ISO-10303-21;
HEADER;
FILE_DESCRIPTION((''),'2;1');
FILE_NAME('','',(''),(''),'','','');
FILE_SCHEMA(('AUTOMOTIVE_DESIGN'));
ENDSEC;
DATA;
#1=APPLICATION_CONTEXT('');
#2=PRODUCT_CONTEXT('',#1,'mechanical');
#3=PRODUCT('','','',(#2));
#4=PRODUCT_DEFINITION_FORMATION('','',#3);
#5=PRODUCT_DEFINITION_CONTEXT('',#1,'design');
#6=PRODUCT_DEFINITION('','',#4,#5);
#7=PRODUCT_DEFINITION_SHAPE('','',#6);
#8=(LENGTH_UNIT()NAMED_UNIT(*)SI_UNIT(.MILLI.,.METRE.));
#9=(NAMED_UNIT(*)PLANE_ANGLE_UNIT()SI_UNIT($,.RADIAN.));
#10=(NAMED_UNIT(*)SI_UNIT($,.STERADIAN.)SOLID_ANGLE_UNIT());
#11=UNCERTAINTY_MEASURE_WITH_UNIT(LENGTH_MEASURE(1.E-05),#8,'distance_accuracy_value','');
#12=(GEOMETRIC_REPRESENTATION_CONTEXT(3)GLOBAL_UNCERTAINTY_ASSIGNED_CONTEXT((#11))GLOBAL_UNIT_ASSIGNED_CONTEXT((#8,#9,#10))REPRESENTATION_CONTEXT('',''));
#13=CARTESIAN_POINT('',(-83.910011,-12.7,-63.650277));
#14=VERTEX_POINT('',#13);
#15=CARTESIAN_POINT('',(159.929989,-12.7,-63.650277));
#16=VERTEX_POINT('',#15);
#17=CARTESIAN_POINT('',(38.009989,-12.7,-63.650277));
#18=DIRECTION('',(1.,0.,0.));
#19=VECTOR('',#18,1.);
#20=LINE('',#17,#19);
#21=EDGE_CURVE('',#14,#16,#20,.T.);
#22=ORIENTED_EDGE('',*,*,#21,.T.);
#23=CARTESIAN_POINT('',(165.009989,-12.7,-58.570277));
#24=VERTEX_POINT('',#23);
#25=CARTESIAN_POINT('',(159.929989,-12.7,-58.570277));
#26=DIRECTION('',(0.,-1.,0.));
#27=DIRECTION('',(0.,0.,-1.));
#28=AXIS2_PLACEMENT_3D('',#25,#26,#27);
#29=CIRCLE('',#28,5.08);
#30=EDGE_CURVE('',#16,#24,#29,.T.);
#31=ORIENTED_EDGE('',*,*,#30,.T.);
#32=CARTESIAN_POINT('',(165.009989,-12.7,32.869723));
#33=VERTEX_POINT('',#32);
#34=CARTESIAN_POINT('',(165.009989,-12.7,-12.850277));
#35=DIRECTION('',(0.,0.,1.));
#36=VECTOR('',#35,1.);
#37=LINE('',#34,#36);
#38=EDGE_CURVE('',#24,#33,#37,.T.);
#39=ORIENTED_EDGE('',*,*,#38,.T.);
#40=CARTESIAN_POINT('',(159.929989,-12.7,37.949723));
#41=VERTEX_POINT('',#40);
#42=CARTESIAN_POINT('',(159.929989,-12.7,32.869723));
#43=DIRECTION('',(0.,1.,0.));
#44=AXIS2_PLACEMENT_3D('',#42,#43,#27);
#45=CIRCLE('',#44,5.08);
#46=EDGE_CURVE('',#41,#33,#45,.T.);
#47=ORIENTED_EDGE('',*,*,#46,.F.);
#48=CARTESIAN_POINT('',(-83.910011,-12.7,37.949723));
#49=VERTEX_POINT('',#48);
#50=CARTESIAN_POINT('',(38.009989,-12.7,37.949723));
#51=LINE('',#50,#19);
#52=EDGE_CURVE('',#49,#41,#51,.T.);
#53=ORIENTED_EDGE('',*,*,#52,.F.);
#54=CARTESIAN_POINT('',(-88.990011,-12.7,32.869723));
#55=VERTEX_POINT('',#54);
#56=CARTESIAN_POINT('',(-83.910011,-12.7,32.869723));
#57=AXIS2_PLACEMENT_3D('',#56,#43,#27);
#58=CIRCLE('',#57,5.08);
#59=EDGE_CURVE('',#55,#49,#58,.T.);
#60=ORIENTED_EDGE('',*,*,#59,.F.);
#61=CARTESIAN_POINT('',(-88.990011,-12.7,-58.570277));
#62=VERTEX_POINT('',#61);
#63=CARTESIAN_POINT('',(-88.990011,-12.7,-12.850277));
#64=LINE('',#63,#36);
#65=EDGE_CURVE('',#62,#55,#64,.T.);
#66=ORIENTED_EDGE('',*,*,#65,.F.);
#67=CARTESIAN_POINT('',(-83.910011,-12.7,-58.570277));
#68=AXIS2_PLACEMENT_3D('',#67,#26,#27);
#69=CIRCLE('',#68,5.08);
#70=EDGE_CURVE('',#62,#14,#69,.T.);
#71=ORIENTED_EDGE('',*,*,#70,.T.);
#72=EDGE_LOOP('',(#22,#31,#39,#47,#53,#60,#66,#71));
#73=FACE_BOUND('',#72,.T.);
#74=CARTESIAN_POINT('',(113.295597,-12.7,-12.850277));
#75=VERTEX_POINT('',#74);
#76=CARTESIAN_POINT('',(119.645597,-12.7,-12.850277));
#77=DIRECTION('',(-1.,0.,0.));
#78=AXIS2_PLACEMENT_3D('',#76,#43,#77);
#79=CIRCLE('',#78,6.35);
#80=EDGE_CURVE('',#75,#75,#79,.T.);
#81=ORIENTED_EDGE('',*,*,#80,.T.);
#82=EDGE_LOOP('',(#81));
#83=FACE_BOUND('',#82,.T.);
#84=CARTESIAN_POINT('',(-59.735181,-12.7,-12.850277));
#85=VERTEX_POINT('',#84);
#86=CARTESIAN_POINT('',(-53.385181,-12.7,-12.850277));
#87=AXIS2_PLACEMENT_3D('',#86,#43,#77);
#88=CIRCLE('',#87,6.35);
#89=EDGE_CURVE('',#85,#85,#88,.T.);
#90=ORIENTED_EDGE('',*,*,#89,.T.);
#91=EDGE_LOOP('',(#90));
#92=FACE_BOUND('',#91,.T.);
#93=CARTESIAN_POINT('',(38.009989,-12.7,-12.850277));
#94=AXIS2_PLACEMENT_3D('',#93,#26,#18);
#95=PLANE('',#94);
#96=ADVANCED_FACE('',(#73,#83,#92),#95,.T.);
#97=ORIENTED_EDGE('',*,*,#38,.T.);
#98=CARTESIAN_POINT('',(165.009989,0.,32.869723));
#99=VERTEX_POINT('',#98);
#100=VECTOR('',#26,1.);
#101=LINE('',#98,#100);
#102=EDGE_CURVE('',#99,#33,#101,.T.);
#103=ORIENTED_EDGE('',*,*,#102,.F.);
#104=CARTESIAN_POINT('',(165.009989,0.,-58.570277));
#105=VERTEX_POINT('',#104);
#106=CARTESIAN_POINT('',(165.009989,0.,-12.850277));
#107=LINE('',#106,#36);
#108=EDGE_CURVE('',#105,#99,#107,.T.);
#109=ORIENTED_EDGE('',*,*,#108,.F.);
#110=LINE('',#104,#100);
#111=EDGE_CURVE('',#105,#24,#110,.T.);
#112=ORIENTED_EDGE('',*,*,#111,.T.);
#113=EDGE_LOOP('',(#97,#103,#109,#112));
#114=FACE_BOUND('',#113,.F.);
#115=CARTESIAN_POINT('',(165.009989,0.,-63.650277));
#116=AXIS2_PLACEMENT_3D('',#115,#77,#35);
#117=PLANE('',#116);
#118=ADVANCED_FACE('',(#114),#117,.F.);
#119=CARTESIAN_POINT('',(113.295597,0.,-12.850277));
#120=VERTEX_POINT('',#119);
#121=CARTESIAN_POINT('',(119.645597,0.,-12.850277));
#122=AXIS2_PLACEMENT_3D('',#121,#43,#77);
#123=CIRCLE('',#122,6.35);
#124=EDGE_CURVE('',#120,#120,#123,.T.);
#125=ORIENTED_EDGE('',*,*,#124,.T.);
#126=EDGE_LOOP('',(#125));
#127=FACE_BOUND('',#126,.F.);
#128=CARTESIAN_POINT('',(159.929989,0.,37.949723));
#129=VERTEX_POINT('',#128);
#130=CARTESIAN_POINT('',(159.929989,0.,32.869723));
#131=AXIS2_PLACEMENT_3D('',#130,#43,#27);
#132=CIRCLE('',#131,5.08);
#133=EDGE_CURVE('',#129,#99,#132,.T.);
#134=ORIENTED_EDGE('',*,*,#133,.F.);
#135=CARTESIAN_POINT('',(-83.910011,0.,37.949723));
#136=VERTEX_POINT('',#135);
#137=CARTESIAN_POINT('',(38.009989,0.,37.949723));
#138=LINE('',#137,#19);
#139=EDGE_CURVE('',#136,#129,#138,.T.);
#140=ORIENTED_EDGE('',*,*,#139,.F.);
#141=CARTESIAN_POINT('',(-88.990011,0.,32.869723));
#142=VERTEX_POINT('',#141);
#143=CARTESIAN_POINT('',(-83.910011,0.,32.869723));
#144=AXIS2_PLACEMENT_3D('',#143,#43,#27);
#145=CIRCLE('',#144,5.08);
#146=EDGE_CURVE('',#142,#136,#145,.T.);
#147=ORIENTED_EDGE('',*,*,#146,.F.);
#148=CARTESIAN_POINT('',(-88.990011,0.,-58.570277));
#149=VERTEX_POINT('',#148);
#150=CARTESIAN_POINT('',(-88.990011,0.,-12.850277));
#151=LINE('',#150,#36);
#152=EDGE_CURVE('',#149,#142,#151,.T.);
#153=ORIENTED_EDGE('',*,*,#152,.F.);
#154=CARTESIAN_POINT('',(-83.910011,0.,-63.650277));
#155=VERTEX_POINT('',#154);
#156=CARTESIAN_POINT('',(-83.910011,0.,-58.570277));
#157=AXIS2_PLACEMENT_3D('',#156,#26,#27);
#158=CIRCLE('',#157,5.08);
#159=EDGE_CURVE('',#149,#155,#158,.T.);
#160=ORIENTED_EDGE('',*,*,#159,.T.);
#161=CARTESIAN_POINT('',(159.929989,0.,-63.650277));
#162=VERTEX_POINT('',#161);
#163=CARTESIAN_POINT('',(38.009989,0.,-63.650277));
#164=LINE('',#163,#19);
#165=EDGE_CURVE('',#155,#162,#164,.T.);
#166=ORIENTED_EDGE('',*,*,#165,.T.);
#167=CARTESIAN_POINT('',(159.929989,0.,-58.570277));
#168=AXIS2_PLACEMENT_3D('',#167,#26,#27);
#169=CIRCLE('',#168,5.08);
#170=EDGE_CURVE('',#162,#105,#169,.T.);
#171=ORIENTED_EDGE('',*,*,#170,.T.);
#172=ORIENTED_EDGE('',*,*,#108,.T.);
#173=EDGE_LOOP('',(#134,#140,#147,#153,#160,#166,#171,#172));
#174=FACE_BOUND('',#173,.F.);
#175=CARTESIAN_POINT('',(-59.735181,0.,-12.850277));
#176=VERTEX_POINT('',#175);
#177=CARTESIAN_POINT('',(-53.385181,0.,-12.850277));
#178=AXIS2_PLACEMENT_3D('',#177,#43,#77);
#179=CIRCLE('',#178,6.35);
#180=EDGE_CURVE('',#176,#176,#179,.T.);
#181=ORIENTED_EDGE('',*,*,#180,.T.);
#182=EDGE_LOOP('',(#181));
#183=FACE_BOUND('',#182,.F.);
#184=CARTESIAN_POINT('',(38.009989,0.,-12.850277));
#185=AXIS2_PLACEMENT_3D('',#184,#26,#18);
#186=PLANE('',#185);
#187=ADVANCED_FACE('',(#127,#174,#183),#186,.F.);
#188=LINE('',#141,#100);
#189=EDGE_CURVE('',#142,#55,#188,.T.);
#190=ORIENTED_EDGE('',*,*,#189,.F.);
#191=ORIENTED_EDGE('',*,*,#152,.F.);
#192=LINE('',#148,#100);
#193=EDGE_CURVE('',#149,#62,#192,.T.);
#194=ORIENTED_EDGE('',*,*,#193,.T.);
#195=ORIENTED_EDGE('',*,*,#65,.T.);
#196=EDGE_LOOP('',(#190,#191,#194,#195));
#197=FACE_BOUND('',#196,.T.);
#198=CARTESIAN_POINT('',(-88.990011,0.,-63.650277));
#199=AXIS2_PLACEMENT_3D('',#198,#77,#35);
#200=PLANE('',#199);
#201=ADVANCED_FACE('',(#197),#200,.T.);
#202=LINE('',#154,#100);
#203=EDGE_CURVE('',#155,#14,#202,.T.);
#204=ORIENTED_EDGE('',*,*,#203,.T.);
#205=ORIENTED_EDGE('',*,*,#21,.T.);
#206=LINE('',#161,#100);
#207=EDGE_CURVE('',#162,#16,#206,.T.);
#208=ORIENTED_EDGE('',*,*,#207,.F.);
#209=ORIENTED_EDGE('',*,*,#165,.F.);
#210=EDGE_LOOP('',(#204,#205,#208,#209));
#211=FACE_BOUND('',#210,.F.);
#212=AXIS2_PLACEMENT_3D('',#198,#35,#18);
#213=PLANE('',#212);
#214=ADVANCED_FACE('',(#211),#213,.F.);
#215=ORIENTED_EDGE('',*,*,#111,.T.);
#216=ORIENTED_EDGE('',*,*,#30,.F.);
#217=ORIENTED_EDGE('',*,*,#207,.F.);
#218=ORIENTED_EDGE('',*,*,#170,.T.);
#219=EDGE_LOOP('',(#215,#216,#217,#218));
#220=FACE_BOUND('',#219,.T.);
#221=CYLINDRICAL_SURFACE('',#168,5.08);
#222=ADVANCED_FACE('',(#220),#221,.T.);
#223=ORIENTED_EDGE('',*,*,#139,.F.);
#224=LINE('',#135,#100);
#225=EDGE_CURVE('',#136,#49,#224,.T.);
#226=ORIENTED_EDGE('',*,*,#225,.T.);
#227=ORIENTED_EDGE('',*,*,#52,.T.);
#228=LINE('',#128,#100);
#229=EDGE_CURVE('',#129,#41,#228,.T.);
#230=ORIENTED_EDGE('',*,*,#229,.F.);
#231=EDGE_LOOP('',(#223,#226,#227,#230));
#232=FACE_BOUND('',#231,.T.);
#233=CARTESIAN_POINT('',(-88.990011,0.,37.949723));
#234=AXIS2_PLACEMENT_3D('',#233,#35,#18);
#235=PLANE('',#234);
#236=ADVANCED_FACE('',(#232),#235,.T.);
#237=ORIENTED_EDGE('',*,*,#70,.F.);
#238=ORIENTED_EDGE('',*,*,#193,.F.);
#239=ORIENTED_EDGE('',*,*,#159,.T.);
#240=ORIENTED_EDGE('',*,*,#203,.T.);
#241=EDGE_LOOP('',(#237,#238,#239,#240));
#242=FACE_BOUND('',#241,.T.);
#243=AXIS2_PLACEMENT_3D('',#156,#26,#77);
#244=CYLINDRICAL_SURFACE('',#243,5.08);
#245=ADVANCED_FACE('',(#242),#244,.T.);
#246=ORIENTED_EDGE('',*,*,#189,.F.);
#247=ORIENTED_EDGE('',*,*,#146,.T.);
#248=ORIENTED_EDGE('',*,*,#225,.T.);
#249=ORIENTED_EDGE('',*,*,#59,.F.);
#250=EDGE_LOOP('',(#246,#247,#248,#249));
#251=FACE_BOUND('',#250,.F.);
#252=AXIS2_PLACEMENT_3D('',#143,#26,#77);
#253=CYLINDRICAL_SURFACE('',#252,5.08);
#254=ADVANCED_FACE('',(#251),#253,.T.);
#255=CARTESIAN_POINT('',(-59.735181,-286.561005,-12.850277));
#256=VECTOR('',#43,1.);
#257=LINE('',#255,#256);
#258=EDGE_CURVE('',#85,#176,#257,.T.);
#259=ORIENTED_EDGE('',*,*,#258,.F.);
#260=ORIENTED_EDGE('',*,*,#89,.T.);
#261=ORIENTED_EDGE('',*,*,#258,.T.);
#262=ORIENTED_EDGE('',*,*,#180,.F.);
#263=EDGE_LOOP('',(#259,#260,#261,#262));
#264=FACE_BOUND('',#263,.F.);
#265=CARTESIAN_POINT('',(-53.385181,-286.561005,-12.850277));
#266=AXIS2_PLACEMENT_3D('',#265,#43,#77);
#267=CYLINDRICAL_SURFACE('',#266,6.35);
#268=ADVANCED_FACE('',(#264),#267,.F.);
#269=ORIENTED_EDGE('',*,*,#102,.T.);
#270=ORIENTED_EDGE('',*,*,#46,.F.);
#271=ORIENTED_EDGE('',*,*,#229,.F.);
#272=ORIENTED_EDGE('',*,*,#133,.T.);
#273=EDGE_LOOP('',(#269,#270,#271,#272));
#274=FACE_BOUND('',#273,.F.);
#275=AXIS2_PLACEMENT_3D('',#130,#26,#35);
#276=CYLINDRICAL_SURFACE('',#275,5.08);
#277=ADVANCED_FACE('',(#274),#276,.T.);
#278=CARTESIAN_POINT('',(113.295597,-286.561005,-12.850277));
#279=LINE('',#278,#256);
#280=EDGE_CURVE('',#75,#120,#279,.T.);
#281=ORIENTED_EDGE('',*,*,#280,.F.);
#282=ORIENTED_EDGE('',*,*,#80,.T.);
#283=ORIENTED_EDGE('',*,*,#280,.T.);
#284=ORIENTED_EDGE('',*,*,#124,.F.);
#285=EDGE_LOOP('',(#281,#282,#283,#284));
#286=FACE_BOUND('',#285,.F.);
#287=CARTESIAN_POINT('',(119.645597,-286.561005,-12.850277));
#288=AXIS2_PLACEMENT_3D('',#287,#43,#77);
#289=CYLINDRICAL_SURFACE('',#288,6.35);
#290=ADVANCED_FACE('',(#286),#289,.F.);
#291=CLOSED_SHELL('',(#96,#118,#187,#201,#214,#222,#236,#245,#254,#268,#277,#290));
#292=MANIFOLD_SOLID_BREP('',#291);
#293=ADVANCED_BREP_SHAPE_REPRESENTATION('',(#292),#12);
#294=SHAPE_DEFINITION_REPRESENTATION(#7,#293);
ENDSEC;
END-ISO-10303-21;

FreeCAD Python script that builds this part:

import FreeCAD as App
import Part
import Sketcher
from FreeCAD import Vector
Q = App.Units.Quantity


def edges_at(feature, points):
    """Names of the edges that pass closest to the given points."""
    edges = feature.Shape.Edges
    near = lambda p: min(range(len(edges)), key=lambda i: edges[i].distToShape(Part.Vertex(*p))[0])
    return sorted({f"Edge{near(p) + 1}" for p in points})


def add_polygon(sketch, points):
    """Adds a closed chain of lines whose ends are joined by coincident constraints."""
    first, n = sketch.GeometryCount, len(points)
    for a, b in zip(points, points[1:] + points[:1]):
        sketch.addGeometry(Part.LineSegment(App.Vector(*a, 0), App.Vector(*b, 0)), False)
    for i in range(n):
        sketch.addConstraint(Sketcher.Constraint("Coincident", first + i, 2, first + (i + 1) % n, 1))

doc = App.newDocument("Part")
body = doc.addObject("PartDesign::Body", "Body")

# Sketch on XZ plane
sketch1 = body.newObject("Sketcher::SketchObject", "Sketch")
sketch1.AttachmentSupport = (doc.getObject("XZ_Plane"), [""])
sketch1.MapMode = "FlatFace"
add_polygon(sketch1, [(-88.990011, 37.949723), (-88.990011, -63.650277), (165.009989, -63.650277), (165.009989, 37.949723)])  # lines 0-3
sketch1.addConstraint([
    Sketcher.Constraint("Vertical", 0),
    Sketcher.Constraint("Horizontal", 1),
    Sketcher.Constraint("Vertical", 2),
    Sketcher.Constraint("Horizontal", 3),
    Sketcher.Constraint("DistanceX", 1, 1, 1, 2, Q("10 in")),
    Sketcher.Constraint("DistanceY", 0, 2, 0, 1, Q("4 in")),
    Sketcher.Constraint("DistanceX", 0, 2, -1, 1, 88.990011),
    Sketcher.Constraint("DistanceY", 0, 2, -1, 1, 63.650277),
])
pad1 = body.newObject("PartDesign::Pad", "Pad")
pad1.Profile = sketch1
pad1.Length = Q("0.5 in")

# Sketch on XZ plane
sketch2 = body.newObject("Sketcher::SketchObject", "Sketch001")
sketch2.AttachmentSupport = (doc.getObject("XZ_Plane"), [""])
sketch2.MapMode = "FlatFace"
sketch2.AttachmentOffset = App.Placement(Vector(0, 0, 0.5 * 25.4), App.Rotation())
sketch2.addGeometry([
    Part.Circle(Vector(-53.385181, -12.850277, 0), Vector(0, 0, 1), 6.35),
    Part.Circle(Vector(119.645597, -12.850277, 0), Vector(0, 0, 1), 6.35),
], False)
sketch2.addConstraint([
    Sketcher.Constraint("Equal", 0, 1),
    Sketcher.Constraint("Horizontal", 0, 3, 1, 3),
    Sketcher.Constraint("Diameter", 0, Q("0.5 in")),
    Sketcher.Constraint("DistanceX", 0, 3, -1, 1, 53.385181),
    Sketcher.Constraint("DistanceX", 0, 3, 1, 3, 173.030778),
    Sketcher.Constraint("DistanceY", 0, 3, -1, 1, 12.850277),
])
doc.recompute()
hole = body.newObject("PartDesign::Hole", "Hole")
hole.Profile = sketch2
hole.ThreadType = "None"
hole.Diameter = Q("0.5 in")
hole.DepthType = "ThroughAll"
doc.recompute()

fillet = body.newObject("PartDesign::Fillet", "Fillet")
fillet.Base = (hole, edges_at(hole, [(-88.99, -6.35, 37.95)]))
fillet.Radius = Q("0.2 in")
doc.recompute()

fillet2 = body.newObject("PartDesign::Fillet", "Fillet001")
fillet2.Base = (fillet, edges_at(fillet, [(165.01, -6.35, 37.95)]))
fillet2.Radius = Q("0.2 in")
doc.recompute()

fillet3 = body.newObject("PartDesign::Fillet", "Fillet002")
fillet3.Base = (fillet2, edges_at(fillet2, [(-88.99, -6.35, -63.65)]))
fillet3.Radius = Q("0.2 in")
doc.recompute()

fillet4 = body.newObject("PartDesign::Fillet", "Fillet003")
fillet4.Base = (fillet3, edges_at(fillet3, [(165.01, -6.35, -63.65)]))
fillet4.Radius = Q("0.2 in")

doc.recompute()
